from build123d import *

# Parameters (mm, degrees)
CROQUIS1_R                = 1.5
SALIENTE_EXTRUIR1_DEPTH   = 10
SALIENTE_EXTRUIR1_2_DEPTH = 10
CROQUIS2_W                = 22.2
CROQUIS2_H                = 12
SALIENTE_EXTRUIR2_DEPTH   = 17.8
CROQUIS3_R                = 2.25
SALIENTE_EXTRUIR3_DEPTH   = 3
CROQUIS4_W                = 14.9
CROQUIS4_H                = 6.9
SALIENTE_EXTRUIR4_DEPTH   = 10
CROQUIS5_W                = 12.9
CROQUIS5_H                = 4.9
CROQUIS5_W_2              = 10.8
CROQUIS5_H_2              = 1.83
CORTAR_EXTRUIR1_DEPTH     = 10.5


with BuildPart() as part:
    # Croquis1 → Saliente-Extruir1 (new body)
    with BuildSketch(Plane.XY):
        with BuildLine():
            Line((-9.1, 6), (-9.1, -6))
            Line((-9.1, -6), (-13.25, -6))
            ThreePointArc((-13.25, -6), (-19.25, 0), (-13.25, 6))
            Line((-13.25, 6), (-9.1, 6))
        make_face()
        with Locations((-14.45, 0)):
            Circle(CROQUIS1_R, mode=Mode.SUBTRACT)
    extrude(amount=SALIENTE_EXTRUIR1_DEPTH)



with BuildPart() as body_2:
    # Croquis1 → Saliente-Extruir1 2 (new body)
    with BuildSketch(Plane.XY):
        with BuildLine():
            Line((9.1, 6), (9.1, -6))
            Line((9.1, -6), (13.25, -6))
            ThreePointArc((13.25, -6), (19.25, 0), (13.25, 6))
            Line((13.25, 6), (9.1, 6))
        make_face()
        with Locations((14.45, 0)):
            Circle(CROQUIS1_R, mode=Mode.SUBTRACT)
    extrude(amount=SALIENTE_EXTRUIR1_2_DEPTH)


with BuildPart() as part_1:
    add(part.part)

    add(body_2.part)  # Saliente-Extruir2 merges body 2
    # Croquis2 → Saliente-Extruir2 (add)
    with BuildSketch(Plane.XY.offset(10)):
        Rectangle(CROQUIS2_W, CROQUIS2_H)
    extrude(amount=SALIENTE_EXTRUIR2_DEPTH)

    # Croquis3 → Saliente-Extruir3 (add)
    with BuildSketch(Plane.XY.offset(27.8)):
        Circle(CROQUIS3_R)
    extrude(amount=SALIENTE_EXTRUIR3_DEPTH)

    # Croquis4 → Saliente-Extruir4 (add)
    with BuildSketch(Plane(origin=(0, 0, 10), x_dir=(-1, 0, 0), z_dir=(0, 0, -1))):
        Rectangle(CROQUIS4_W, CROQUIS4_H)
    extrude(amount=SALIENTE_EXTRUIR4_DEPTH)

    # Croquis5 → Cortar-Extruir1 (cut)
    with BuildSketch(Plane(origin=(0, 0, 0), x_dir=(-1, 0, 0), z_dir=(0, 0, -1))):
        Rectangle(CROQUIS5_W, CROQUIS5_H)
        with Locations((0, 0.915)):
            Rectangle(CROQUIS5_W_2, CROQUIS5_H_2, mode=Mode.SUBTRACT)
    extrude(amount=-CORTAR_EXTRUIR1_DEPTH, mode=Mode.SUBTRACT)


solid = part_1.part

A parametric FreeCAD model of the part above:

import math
import FreeCAD as App
import Part
import Sketcher
from FreeCAD import Vector
Q = App.Units.Quantity

doc = App.newDocument("Part")
body = doc.addObject("PartDesign::Body", "Body")

sketch1 = body.newObject("Sketcher::SketchObject", "Sketch")
sketch1.AttachmentSupport = (doc.getObject("XY_Plane"), [""])
sketch1.MapMode = "FlatFace"
sketch1.addGeometry([
    Part.LineSegment(Vector(-9.1, -6, 0), Vector(-9.1, 6, 0)),
    Part.LineSegment(Vector(-9.1, 6, 0), Vector(-13.25, 6, 0)),
    Part.ArcOfCircle(Part.Circle(Vector(-13.25, 0, 0), Vector(0, 0, 1), 6), math.radians(90), math.radians(270)),
    Part.LineSegment(Vector(-13.25, -6, 0), Vector(-9.1, -6, 0)),
    Part.Circle(Vector(-14.45, 0, 0), Vector(0, 0, 1), 1.5),
], False)
sketch1.addConstraint([
    Sketcher.Constraint("Coincident", 0, 2, 1, 1),
    Sketcher.Constraint("Tangent", 1, 2, 2, 1),
    Sketcher.Constraint("Tangent", 2, 2, 3, 1),
    Sketcher.Constraint("Coincident", 3, 2, 0, 1),
    Sketcher.Constraint("Vertical", 0),
    Sketcher.Constraint("Horizontal", 1),
    Sketcher.Constraint("Horizontal", 3),
    Sketcher.Constraint("PointOnObject", 2, 3, -1),
    Sketcher.Constraint("PointOnObject", 4, 3, -1),
    Sketcher.Constraint("Diameter", 4, Q("3 mm")),
    Sketcher.Constraint("Radius", 2, Q("6 mm")),
    Sketcher.Constraint("DistanceX", 1, 2, 1, 1, Q("4.15 mm")),
    Sketcher.Constraint("DistanceX", 0, 2, -1, 1, Q("9.1 mm")),
    Sketcher.Constraint("DistanceX", 4, 3, 2, 3, Q("1.2 mm")),
])
pad1 = body.newObject("PartDesign::Pad", "Pad")
pad1.Profile = sketch1
pad1.Length = 10
body2 = doc.addObject("PartDesign::Body", "Body001")

sketch2 = body2.newObject("Sketcher::SketchObject", "Sketch001")
sketch2.AttachmentSupport = (doc.getObject("XY_Plane001"), [""])
sketch2.MapMode = "FlatFace"
sketch2.addGeometry([
    Part.LineSegment(Vector(9.1, 6, 0), Vector(9.1, -6, 0)),
    Part.LineSegment(Vector(9.1, -6, 0), Vector(13.25, -6, 0)),
    Part.ArcOfCircle(Part.Circle(Vector(13.25, 0, 0), Vector(0, 0, 1), 6), math.radians(-90), math.radians(90)),
    Part.LineSegment(Vector(13.25, 6, 0), Vector(9.1, 6, 0)),
    Part.Circle(Vector(14.45, 0, 0), Vector(0, 0, 1), 1.5),
], False)
sketch2.addConstraint([
    Sketcher.Constraint("Coincident", 0, 2, 1, 1),
    Sketcher.Constraint("Tangent", 1, 2, 2, 1),
    Sketcher.Constraint("Tangent", 2, 2, 3, 1),
    Sketcher.Constraint("Coincident", 3, 2, 0, 1),
    Sketcher.Constraint("Vertical", 0),
    Sketcher.Constraint("Horizontal", 1),
    Sketcher.Constraint("Horizontal", 3),
    Sketcher.Constraint("PointOnObject", 2, 3, -1),
    Sketcher.Constraint("PointOnObject", 4, 3, -1),
    Sketcher.Constraint("Diameter", 4, Q("3 mm")),
    Sketcher.Constraint("Radius", 2, Q("6 mm")),
    Sketcher.Constraint("DistanceX", 1, 1, 1, 2, Q("4.15 mm")),
    Sketcher.Constraint("DistanceX", -1, 1, 0, 2, Q("9.1 mm")),
    Sketcher.Constraint("DistanceX", 2, 3, 4, 3, Q("1.2 mm")),
])
pad2 = body2.newObject("PartDesign::Pad", "Pad001")
pad2.Profile = sketch2
pad2.Length = 10
body.AllowCompound = True
doc.recompute()

boolean = body.newObject("PartDesign::Boolean", "Boolean")
boolean.Type = "Fuse"
boolean.addObjects([body2])

sketch3 = body.newObject("Sketcher::SketchObject", "Sketch002")
sketch3.AttachmentSupport = (doc.getObject("XY_Plane"), [""])
sketch3.MapMode = "FlatFace"
sketch3.AttachmentOffset = App.Placement(Vector(0, 0, 10), App.Rotation())
sketch3.addGeometry([
    Part.LineSegment(Vector(-11.1, 6, 0), Vector(-11.1, -6, 0)),
    Part.LineSegment(Vector(-11.1, -6, 0), Vector(11.1, -6, 0)),
    Part.LineSegment(Vector(11.1, -6, 0), Vector(11.1, 6, 0)),
    Part.LineSegment(Vector(11.1, 6, 0), Vector(-11.1, 6, 0)),
], False)
sketch3.addConstraint([
    Sketcher.Constraint("Coincident", 0, 2, 1, 1),
    Sketcher.Constraint("Coincident", 1, 2, 2, 1),
    Sketcher.Constraint("Coincident", 2, 2, 3, 1),
    Sketcher.Constraint("Coincident", 3, 2, 0, 1),
    Sketcher.Constraint("Vertical", 0),
    Sketcher.Constraint("Horizontal", 1),
    Sketcher.Constraint("Vertical", 2),
    Sketcher.Constraint("Horizontal", 3),
    Sketcher.Constraint("Symmetric", 0, 2, 2, 2, -1, 1),
    Sketcher.Constraint("DistanceY", 0, 2, 0, 1, Q("12 mm")),
    Sketcher.Constraint("DistanceX", 1, 1, 1, 2, Q("22.2 mm")),
])
pad3 = body.newObject("PartDesign::Pad", "Pad002")
pad3.Profile = sketch3
pad3.Length = 17.8

sketch4 = body.newObject("Sketcher::SketchObject", "Sketch003")
sketch4.AttachmentSupport = (doc.getObject("XY_Plane"), [""])
sketch4.MapMode = "FlatFace"
sketch4.AttachmentOffset = App.Placement(Vector(0, 0, 27.8), App.Rotation())
sketch4.addGeometry(Part.Circle(Vector(0, 0, 0), Vector(0, 0, 1), 2.25), False)
sketch4.addConstraint([
    Sketcher.Constraint("Coincident", 0, 3, -1, 1),
    Sketcher.Constraint("Diameter", 0, Q("4.5 mm")),
])
pad4 = body.newObject("PartDesign::Pad", "Pad003")
pad4.Profile = sketch4
pad4.Length = 3

sketch5 = body.newObject("Sketcher::SketchObject", "Sketch004")
sketch5.AttachmentSupport = (doc.getObject("XY_Plane"), [""])
sketch5.MapMode = "FlatFace"
sketch5.AttachmentOffset = App.Placement(Vector(0, 0, 10), App.Rotation())
sketch5.addGeometry([
    Part.LineSegment(Vector(7.45, 3.45, 0), Vector(7.45, -3.45, 0)),
    Part.LineSegment(Vector(7.45, -3.45, 0), Vector(-7.45, -3.45, 0)),
    Part.LineSegment(Vector(-7.45, -3.45, 0), Vector(-7.45, 3.45, 0)),
    Part.LineSegment(Vector(-7.45, 3.45, 0), Vector(7.45, 3.45, 0)),
], False)
sketch5.addConstraint([
    Sketcher.Constraint("Coincident", 0, 2, 1, 1),
    Sketcher.Constraint("Coincident", 1, 2, 2, 1),
    Sketcher.Constraint("Coincident", 2, 2, 3, 1),
    Sketcher.Constraint("Coincident", 3, 2, 0, 1),
    Sketcher.Constraint("Vertical", 0),
    Sketcher.Constraint("Horizontal", 1),
    Sketcher.Constraint("Vertical", 2),
    Sketcher.Constraint("Horizontal", 3),
    Sketcher.Constraint("Symmetric", 0, 2, 2, 2, -1, 1),
    Sketcher.Constraint("DistanceX", 1, 2, 1, 1, Q("14.9 mm")),
    Sketcher.Constraint("DistanceY", 0, 2, 0, 1, Q("6.9 mm")),
])
pad5 = body.newObject("PartDesign::Pad", "Pad004")
pad5.Profile = sketch5
pad5.Length = 10
pad5.Reversed = True

sketch6 = body.newObject("Sketcher::SketchObject", "Sketch005")
sketch6.AttachmentSupport = (doc.getObject("XY_Plane"), [""])
sketch6.MapMode = "FlatFace"
sketch6.addGeometry([
    Part.LineSegment(Vector(6.45, 2.45, 0), Vector(6.45, -2.45, 0)),
    Part.LineSegment(Vector(6.45, -2.45, 0), Vector(-6.45, -2.45, 0)),
    Part.LineSegment(Vector(-6.45, -2.45, 0), Vector(-6.45, 2.45, 0)),
    Part.LineSegment(Vector(-6.45, 2.45, 0), Vector(6.45, 2.45, 0)),
    Part.LineSegment(Vector(-5.4, 0, 0), Vector(5.4, 0, 0)),
    Part.LineSegment(Vector(5.4, 0, 0), Vector(5.4, 1.83, 0)),
    Part.LineSegment(Vector(5.4, 1.83, 0), Vector(-5.4, 1.83, 0)),
    Part.LineSegment(Vector(-5.4, 1.83, 0), Vector(-5.4, 0, 0)),
], False)
sketch6.addConstraint([
    Sketcher.Constraint("Coincident", 0, 2, 1, 1),
    Sketcher.Constraint("Coincident", 1, 2, 2, 1),
    Sketcher.Constraint("Coincident", 2, 2, 3, 1),
    Sketcher.Constraint("Coincident", 3, 2, 0, 1),
    Sketcher.Constraint("Coincident", 4, 2, 5, 1),
    Sketcher.Constraint("Coincident", 5, 2, 6, 1),
    Sketcher.Constraint("Coincident", 6, 2, 7, 1),
    Sketcher.Constraint("Coincident", 7, 2, 4, 1),
    Sketcher.Constraint("Vertical", 0),
    Sketcher.Constraint("Horizontal", 1),
    Sketcher.Constraint("Vertical", 2),
    Sketcher.Constraint("Horizontal", 3),
    Sketcher.Constraint("Horizontal", 4),
    Sketcher.Constraint("Vertical", 5),
    Sketcher.Constraint("Horizontal", 6),
    Sketcher.Constraint("Vertical", 7),
    Sketcher.Constraint("Symmetric", 0, 2, 2, 2, -1, 1),
    Sketcher.Constraint("Symmetric", 4, 2, 7, 2, -1, 1),
    Sketcher.Constraint("DistanceX", 1, 2, 1, 1, Q("12.9 mm")),
    Sketcher.Constraint("DistanceX", 4, 1, 4, 2, Q("10.8 mm")),
    Sketcher.Constraint("DistanceY", 0, 2, 0, 1, Q("4.9 mm")),
    Sketcher.Constraint("DistanceY", 5, 1, 5, 2, Q("1.83 mm")),
])
pocket1 = body.newObject("PartDesign::Pocket", "Pocket")
pocket1.Profile = sketch6
pocket1.Length = 10.5
pocket1.Reversed = True

doc.recompute()
